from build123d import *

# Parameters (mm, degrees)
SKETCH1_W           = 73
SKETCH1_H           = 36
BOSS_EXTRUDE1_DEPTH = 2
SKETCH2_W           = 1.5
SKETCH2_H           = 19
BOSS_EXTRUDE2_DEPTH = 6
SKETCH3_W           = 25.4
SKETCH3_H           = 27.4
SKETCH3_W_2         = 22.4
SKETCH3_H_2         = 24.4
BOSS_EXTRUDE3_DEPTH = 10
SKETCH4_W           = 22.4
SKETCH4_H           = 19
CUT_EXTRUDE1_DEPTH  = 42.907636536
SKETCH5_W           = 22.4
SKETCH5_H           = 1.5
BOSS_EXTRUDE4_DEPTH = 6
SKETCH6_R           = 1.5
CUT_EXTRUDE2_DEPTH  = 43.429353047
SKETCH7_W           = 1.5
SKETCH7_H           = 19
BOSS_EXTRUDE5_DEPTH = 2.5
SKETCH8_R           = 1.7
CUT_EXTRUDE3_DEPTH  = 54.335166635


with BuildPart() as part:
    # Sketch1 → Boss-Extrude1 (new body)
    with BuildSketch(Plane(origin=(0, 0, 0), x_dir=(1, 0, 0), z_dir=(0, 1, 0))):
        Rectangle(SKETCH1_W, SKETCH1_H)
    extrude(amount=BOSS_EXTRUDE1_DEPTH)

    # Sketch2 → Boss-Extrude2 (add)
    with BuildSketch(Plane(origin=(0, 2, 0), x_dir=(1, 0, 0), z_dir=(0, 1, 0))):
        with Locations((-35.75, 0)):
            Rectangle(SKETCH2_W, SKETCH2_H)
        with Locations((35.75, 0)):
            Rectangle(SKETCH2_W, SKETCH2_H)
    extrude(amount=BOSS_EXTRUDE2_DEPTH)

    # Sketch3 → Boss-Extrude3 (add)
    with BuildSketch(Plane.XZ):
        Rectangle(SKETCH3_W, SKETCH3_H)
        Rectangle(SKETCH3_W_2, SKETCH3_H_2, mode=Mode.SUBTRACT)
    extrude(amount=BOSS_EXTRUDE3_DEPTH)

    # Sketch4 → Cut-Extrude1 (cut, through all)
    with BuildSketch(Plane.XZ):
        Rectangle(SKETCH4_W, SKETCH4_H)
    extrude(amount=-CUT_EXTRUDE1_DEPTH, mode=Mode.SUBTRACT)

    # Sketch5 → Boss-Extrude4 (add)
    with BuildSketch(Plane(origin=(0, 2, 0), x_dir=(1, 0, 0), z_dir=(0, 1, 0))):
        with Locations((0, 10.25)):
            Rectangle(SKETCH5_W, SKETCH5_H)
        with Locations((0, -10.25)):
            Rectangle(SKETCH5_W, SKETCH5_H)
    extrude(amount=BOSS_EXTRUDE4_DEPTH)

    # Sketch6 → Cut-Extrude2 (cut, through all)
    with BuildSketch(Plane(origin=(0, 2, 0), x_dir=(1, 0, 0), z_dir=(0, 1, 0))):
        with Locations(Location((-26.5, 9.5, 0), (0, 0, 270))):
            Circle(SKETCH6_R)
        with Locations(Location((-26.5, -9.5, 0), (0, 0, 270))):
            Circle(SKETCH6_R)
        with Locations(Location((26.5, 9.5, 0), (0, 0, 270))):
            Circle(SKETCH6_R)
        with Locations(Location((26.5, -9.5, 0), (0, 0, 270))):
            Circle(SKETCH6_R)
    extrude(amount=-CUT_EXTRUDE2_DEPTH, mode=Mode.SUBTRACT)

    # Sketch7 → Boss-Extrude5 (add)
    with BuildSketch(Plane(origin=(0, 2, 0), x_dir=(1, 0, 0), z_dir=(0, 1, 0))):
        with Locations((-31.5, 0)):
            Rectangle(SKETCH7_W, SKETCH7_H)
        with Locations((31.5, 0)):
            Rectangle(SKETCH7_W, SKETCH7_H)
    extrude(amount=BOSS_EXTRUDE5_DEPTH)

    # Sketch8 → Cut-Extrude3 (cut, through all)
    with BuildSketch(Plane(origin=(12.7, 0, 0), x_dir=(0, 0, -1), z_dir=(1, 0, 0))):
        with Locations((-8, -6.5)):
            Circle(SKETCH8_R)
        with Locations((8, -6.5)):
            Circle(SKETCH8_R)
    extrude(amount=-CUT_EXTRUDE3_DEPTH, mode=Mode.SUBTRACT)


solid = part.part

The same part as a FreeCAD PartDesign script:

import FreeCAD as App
import Part
import Sketcher
from FreeCAD import Vector
Q = App.Units.Quantity

doc = App.newDocument("Part")
params = doc.addObject("Spreadsheet::Sheet", "Params")
for row, (alias, value) in enumerate([
    ("sketch1_width", "73 mm"),
    ("sketch1_height", "36 mm"),
    ("pad1_length", "2 mm"),
    ("sketch2_height", "19 mm"),
    ("sketch2_width", "1.5 mm"),
    ("pad2_length", "6 mm"),
    ("sketch3_width", "25.4 mm"),
    ("sketch3_width2", "22.4 mm"),
    ("sketch3_height", "27.4 mm"),
    ("sketch3_height2", "24.4 mm"),
    ("pad3_length", "10 mm"),
    ("sketch4_height", "19 mm"),
    ("sketch4_width", "22.4 mm"),
    ("sketch5_width", "22.4 mm"),
    ("sketch5_height", "1.5 mm"),
    ("pad4_length", "6 mm"),
    ("sketch6_diameter", "3 mm"),
    ("sketch7_height", "19 mm"),
    ("sketch7_width", "1.5 mm"),
    ("pad5_length", "2.5 mm"),
    ("sketch8_diameter", "3.4 mm"),
], start=1):
    params.set(f"A{row}", alias)
    params.set(f"B{row}", "=" + value)
    params.setAlias(f"B{row}", alias)

body = doc.addObject("PartDesign::Body", "Body")

# Sketch on XZ plane
sketch1 = doc.addObject("Sketcher::SketchObject", "Sketch")
body.addObject(sketch1)
sketch1.AttachmentSupport = (doc.XZ_Plane, [""])
sketch1.MapMode = "FlatFace"
sketch1.addGeometry([
    Part.LineSegment(Vector(-36.5, -18, 0), Vector(-36.5, 18, 0)),
    Part.LineSegment(Vector(-36.5, 18, 0), Vector(36.5, 18, 0)),
    Part.LineSegment(Vector(36.5, 18, 0), Vector(36.5, -18, 0)),
    Part.LineSegment(Vector(36.5, -18, 0), Vector(-36.5, -18, 0)),
], False)
sketch1.addConstraint([
    Sketcher.Constraint("Coincident", 0, 2, 1, 1),
    Sketcher.Constraint("Coincident", 1, 2, 2, 1),
    Sketcher.Constraint("Coincident", 2, 2, 3, 1),
    Sketcher.Constraint("Coincident", 3, 2, 0, 1),
    Sketcher.Constraint("Vertical", 0),
    Sketcher.Constraint("Horizontal", 1),
    Sketcher.Constraint("Vertical", 2),
    Sketcher.Constraint("Horizontal", 3),
    Sketcher.Constraint("Symmetric", 0, 2, 2, 2, -1, 1),
    Sketcher.Constraint("DistanceX", 1, 1, 1, 2, Q("73 mm")),
    Sketcher.Constraint("DistanceY", 0, 1, 0, 2, Q("36 mm")),
])
sketch1.setExpression("Constraints[9]", "Params.sketch1_width")
sketch1.setExpression("Constraints[10]", "Params.sketch1_height")
pad1 = doc.addObject("PartDesign::Pad", "Pad")
body.addObject(pad1)
pad1.Profile = sketch1
pad1.setExpression("Length", "Params.pad1_length")
pad1.Reversed = True

# Sketch on XZ plane
sketch2 = doc.addObject("Sketcher::SketchObject", "Sketch001")
body.addObject(sketch2)
sketch2.AttachmentSupport = (doc.XZ_Plane, [""])
sketch2.MapMode = "FlatFace"
sketch2.AttachmentOffset = App.Placement(Vector(0, 0, -2), App.Rotation())
sketch2.addGeometry([
    Part.LineSegment(Vector(-36.5, -9.5, 0), Vector(-36.5, 9.5, 0)),  # 0
    Part.LineSegment(Vector(-36.5, 9.5, 0), Vector(-35, 9.5, 0)),  # 1
    Part.LineSegment(Vector(-35, 9.5, 0), Vector(-35, -9.5, 0)),  # 2
    Part.LineSegment(Vector(-35, -9.5, 0), Vector(-36.5, -9.5, 0)),  # 3
    Part.LineSegment(Vector(35, -9.5, 0), Vector(35, 9.5, 0)),  # 4
    Part.LineSegment(Vector(35, 9.5, 0), Vector(36.5, 9.5, 0)),  # 5
    Part.LineSegment(Vector(36.5, 9.5, 0), Vector(36.5, -9.5, 0)),  # 6
    Part.LineSegment(Vector(36.5, -9.5, 0), Vector(35, -9.5, 0)),  # 7
], False)
sketch2.addConstraint([
    Sketcher.Constraint("Coincident", 0, 2, 1, 1),
    Sketcher.Constraint("Coincident", 1, 2, 2, 1),
    Sketcher.Constraint("Coincident", 2, 2, 3, 1),
    Sketcher.Constraint("Coincident", 3, 2, 0, 1),
    Sketcher.Constraint("Coincident", 4, 2, 5, 1),
    Sketcher.Constraint("Coincident", 5, 2, 6, 1),
    Sketcher.Constraint("Coincident", 6, 2, 7, 1),
    Sketcher.Constraint("Coincident", 7, 2, 4, 1),
    Sketcher.Constraint("Vertical", 0),
    Sketcher.Constraint("Horizontal", 1),
    Sketcher.Constraint("Vertical", 2),
    Sketcher.Constraint("Horizontal", 3),
    Sketcher.Constraint("Vertical", 4),
    Sketcher.Constraint("Horizontal", 5),
    Sketcher.Constraint("Vertical", 6),
    Sketcher.Constraint("Horizontal", 7),
    Sketcher.Constraint("Symmetric", 2, 2, 4, 2, -1, 1),
    Sketcher.Constraint("Symmetric", 0, 2, 6, 2, -1, 1),
    Sketcher.Constraint("Horizontal", 1, 2, 4, 2),
    Sketcher.Constraint("DistanceY", 0, 1, 0, 2, Q("19 mm")),
    Sketcher.Constraint("DistanceX", 1, 1, 1, 2, Q("1.5 mm")),
    Sketcher.Constraint("DistanceX", 1, 2, -1, 1, Q("35 mm")),
])
sketch2.setExpression("Constraints[19]", "Params.sketch2_height")
sketch2.setExpression("Constraints[20]", "Params.sketch2_width")
pad2 = doc.addObject("PartDesign::Pad", "Pad001")
body.addObject(pad2)
pad2.Profile = sketch2
pad2.setExpression("Length", "Params.pad2_length")
pad2.Reversed = True

# Sketch on XZ plane
sketch3 = doc.addObject("Sketcher::SketchObject", "Sketch002")
body.addObject(sketch3)
sketch3.AttachmentSupport = (doc.XZ_Plane, [""])
sketch3.MapMode = "FlatFace"
sketch3.addGeometry([
    Part.LineSegment(Vector(-12.7, 13.7, 0), Vector(-12.7, -13.7, 0)),  # 0
    Part.LineSegment(Vector(-12.7, -13.7, 0), Vector(12.7, -13.7, 0)),  # 1
    Part.LineSegment(Vector(12.7, -13.7, 0), Vector(12.7, 13.7, 0)),  # 2
    Part.LineSegment(Vector(12.7, 13.7, 0), Vector(-12.7, 13.7, 0)),  # 3
    Part.LineSegment(Vector(11.2, -12.2, 0), Vector(-11.2, -12.2, 0)),  # 4
    Part.LineSegment(Vector(-11.2, -12.2, 0), Vector(-11.2, 12.2, 0)),  # 5
    Part.LineSegment(Vector(-11.2, 12.2, 0), Vector(11.2, 12.2, 0)),  # 6
    Part.LineSegment(Vector(11.2, 12.2, 0), Vector(11.2, -12.2, 0)),  # 7
], False)
sketch3.addConstraint([
    Sketcher.Constraint("Coincident", 0, 2, 1, 1),
    Sketcher.Constraint("Coincident", 1, 2, 2, 1),
    Sketcher.Constraint("Coincident", 2, 2, 3, 1),
    Sketcher.Constraint("Coincident", 3, 2, 0, 1),
    Sketcher.Constraint("Coincident", 4, 2, 5, 1),
    Sketcher.Constraint("Coincident", 5, 2, 6, 1),
    Sketcher.Constraint("Coincident", 6, 2, 7, 1),
    Sketcher.Constraint("Coincident", 7, 2, 4, 1),
    Sketcher.Constraint("Vertical", 0),
    Sketcher.Constraint("Horizontal", 1),
    Sketcher.Constraint("Vertical", 2),
    Sketcher.Constraint("Horizontal", 3),
    Sketcher.Constraint("Horizontal", 4),
    Sketcher.Constraint("Vertical", 5),
    Sketcher.Constraint("Horizontal", 6),
    Sketcher.Constraint("Vertical", 7),
    Sketcher.Constraint("Symmetric", 0, 2, 2, 2, -1, 1),
    Sketcher.Constraint("Symmetric", 4, 2, 6, 2, -1, 1),
    Sketcher.Constraint("DistanceX", 1, 1, 1, 2, Q("25.4 mm")),
    Sketcher.Constraint("DistanceX", 4, 2, 4, 1, Q("22.4 mm")),
    Sketcher.Constraint("DistanceY", 0, 2, 0, 1, Q("27.4 mm")),
    Sketcher.Constraint("DistanceY", 5, 1, 5, 2, Q("24.4 mm")),
])
sketch3.setExpression("Constraints[18]", "Params.sketch3_width")
sketch3.setExpression("Constraints[19]", "Params.sketch3_width2")
sketch3.setExpression("Constraints[20]", "Params.sketch3_height")
sketch3.setExpression("Constraints[21]", "Params.sketch3_height2")
pad3 = doc.addObject("PartDesign::Pad", "Pad002")
body.addObject(pad3)
pad3.Profile = sketch3
pad3.setExpression("Length", "Params.pad3_length")

# Sketch on XZ plane
sketch4 = doc.addObject("Sketcher::SketchObject", "Sketch003")
body.addObject(sketch4)
sketch4.AttachmentSupport = (doc.XZ_Plane, [""])
sketch4.MapMode = "FlatFace"
sketch4.addGeometry([
    Part.LineSegment(Vector(-11.2, 9.5, 0), Vector(-11.2, -9.5, 0)),
    Part.LineSegment(Vector(-11.2, -9.5, 0), Vector(11.2, -9.5, 0)),
    Part.LineSegment(Vector(11.2, -9.5, 0), Vector(11.2, 9.5, 0)),
    Part.LineSegment(Vector(11.2, 9.5, 0), Vector(-11.2, 9.5, 0)),
], False)
sketch4.addConstraint([
    Sketcher.Constraint("Coincident", 0, 2, 1, 1),
    Sketcher.Constraint("Coincident", 1, 2, 2, 1),
    Sketcher.Constraint("Coincident", 2, 2, 3, 1),
    Sketcher.Constraint("Coincident", 3, 2, 0, 1),
    Sketcher.Constraint("Vertical", 0),
    Sketcher.Constraint("Horizontal", 1),
    Sketcher.Constraint("Vertical", 2),
    Sketcher.Constraint("Horizontal", 3),
    Sketcher.Constraint("Symmetric", 0, 2, 2, 2, -1, 1),
    Sketcher.Constraint("DistanceY", 0, 2, 0, 1, Q("19 mm")),
    Sketcher.Constraint("DistanceX", 1, 1, 1, 2, Q("22.4 mm")),
])
sketch4.setExpression("Constraints[9]", "Params.sketch4_height")
sketch4.setExpression("Constraints[10]", "Params.sketch4_width")
pocket1 = doc.addObject("PartDesign::Pocket", "Pocket")
body.addObject(pocket1)
pocket1.Profile = sketch4
pocket1.Type = "ThroughAll"

# Sketch on XZ plane
sketch5 = doc.addObject("Sketcher::SketchObject", "Sketch004")
body.addObject(sketch5)
sketch5.AttachmentSupport = (doc.XZ_Plane, [""])
sketch5.MapMode = "FlatFace"
sketch5.AttachmentOffset = App.Placement(Vector(0, 0, -2), App.Rotation())
sketch5.addGeometry([
    Part.LineSegment(Vector(-11.2, -11, 0), Vector(-11.2, -9.5, 0)),  # 0
    Part.LineSegment(Vector(-11.2, -9.5, 0), Vector(11.2, -9.5, 0)),  # 1
    Part.LineSegment(Vector(11.2, -9.5, 0), Vector(11.2, -11, 0)),  # 2
    Part.LineSegment(Vector(11.2, -11, 0), Vector(-11.2, -11, 0)),  # 3
    Part.LineSegment(Vector(-11.2, 9.5, 0), Vector(-11.2, 11, 0)),  # 4
    Part.LineSegment(Vector(-11.2, 11, 0), Vector(11.2, 11, 0)),  # 5
    Part.LineSegment(Vector(11.2, 11, 0), Vector(11.2, 9.5, 0)),  # 6
    Part.LineSegment(Vector(11.2, 9.5, 0), Vector(-11.2, 9.5, 0)),  # 7
], False)
sketch5.addConstraint([
    Sketcher.Constraint("Coincident", 0, 2, 1, 1),
    Sketcher.Constraint("Coincident", 1, 2, 2, 1),
    Sketcher.Constraint("Coincident", 2, 2, 3, 1),
    Sketcher.Constraint("Coincident", 3, 2, 0, 1),
    Sketcher.Constraint("Coincident", 4, 2, 5, 1),
    Sketcher.Constraint("Coincident", 5, 2, 6, 1),
    Sketcher.Constraint("Coincident", 6, 2, 7, 1),
    Sketcher.Constraint("Coincident", 7, 2, 4, 1),
    Sketcher.Constraint("Vertical", 0),
    Sketcher.Constraint("Horizontal", 1),
    Sketcher.Constraint("Vertical", 2),
    Sketcher.Constraint("Horizontal", 3),
    Sketcher.Constraint("Vertical", 4),
    Sketcher.Constraint("Horizontal", 5),
    Sketcher.Constraint("Vertical", 6),
    Sketcher.Constraint("Horizontal", 7),
    Sketcher.Constraint("Symmetric", 2, 2, 4, 2, -1, 1),
    Sketcher.Constraint("Symmetric", 0, 2, 6, 2, -1, 1),
    Sketcher.Constraint("Vertical", 3, 2, 4, 2),
    Sketcher.Constraint("DistanceX", 1, 1, 1, 2, Q("22.4 mm")),
    Sketcher.Constraint("DistanceY", 0, 1, 0, 2, Q("1.5 mm")),
    Sketcher.Constraint("DistanceY", 2, 2, -1, 1, Q("11 mm")),
])
sketch5.setExpression("Constraints[19]", "Params.sketch5_width")
sketch5.setExpression("Constraints[20]", "Params.sketch5_height")
pad4 = doc.addObject("PartDesign::Pad", "Pad003")
body.addObject(pad4)
pad4.Profile = sketch5
pad4.setExpression("Length", "Params.pad4_length")
pad4.Reversed = True

# Sketch on XZ plane
sketch6 = doc.addObject("Sketcher::SketchObject", "Sketch005")
body.addObject(sketch6)
sketch6.AttachmentSupport = (doc.XZ_Plane, [""])
sketch6.MapMode = "FlatFace"
sketch6.AttachmentOffset = App.Placement(Vector(0, 0, -2), App.Rotation())
sketch6.addGeometry([
    Part.Circle(Vector(-26.5, -9.5, 0), Vector(0, 0, 1), 1.5),
    Part.Circle(Vector(-26.5, 9.5, 0), Vector(0, 0, 1), 1.5),
    Part.Circle(Vector(26.5, -9.5, 0), Vector(0, 0, 1), 1.5),
    Part.Circle(Vector(26.5, 9.5, 0), Vector(0, 0, 1), 1.5),
], False)
sketch6.addConstraint([
    Sketcher.Constraint("Equal", 0, 1),
    Sketcher.Constraint("Equal", 1, 2),
    Sketcher.Constraint("Equal", 2, 3),
    Sketcher.Constraint("Symmetric", 1, 3, 2, 3, -1, 1),
    Sketcher.Constraint("Symmetric", 0, 3, 3, 3, -1, 1),
    Sketcher.Constraint("Symmetric", 0, 3, 2, 3, -2),
    Sketcher.Constraint("Diameter", 0, Q("3 mm")),
    Sketcher.Constraint("DistanceY", 0, 3, 1, 3, Q("19 mm")),
    Sketcher.Constraint("DistanceX", 0, 3, 2, 3, Q("53 mm")),
])
sketch6.setExpression("Constraints[6]", "Params.sketch6_diameter")
pocket2 = doc.addObject("PartDesign::Pocket", "Pocket001")
body.addObject(pocket2)
pocket2.Profile = sketch6
pocket2.Type = "ThroughAll"
pocket2.Reversed = True

# Sketch on XZ plane
sketch7 = doc.addObject("Sketcher::SketchObject", "Sketch006")
body.addObject(sketch7)
sketch7.AttachmentSupport = (doc.XZ_Plane, [""])
sketch7.MapMode = "FlatFace"
sketch7.AttachmentOffset = App.Placement(Vector(0, 0, -2), App.Rotation())
sketch7.addGeometry([
    Part.LineSegment(Vector(-32.25, -9.5, 0), Vector(-32.25, 9.5, 0)),  # 0
    Part.LineSegment(Vector(-32.25, 9.5, 0), Vector(-30.75, 9.5, 0)),  # 1
    Part.LineSegment(Vector(-30.75, 9.5, 0), Vector(-30.75, -9.5, 0)),  # 2
    Part.LineSegment(Vector(-30.75, -9.5, 0), Vector(-32.25, -9.5, 0)),  # 3
    Part.LineSegment(Vector(30.75, -9.5, 0), Vector(30.75, 9.5, 0)),  # 4
    Part.LineSegment(Vector(30.75, 9.5, 0), Vector(32.25, 9.5, 0)),  # 5
    Part.LineSegment(Vector(32.25, 9.5, 0), Vector(32.25, -9.5, 0)),  # 6
    Part.LineSegment(Vector(32.25, -9.5, 0), Vector(30.75, -9.5, 0)),  # 7
], False)
sketch7.addConstraint([
    Sketcher.Constraint("Coincident", 0, 2, 1, 1),
    Sketcher.Constraint("Coincident", 1, 2, 2, 1),
    Sketcher.Constraint("Coincident", 2, 2, 3, 1),
    Sketcher.Constraint("Coincident", 3, 2, 0, 1),
    Sketcher.Constraint("Coincident", 4, 2, 5, 1),
    Sketcher.Constraint("Coincident", 5, 2, 6, 1),
    Sketcher.Constraint("Coincident", 6, 2, 7, 1),
    Sketcher.Constraint("Coincident", 7, 2, 4, 1),
    Sketcher.Constraint("Vertical", 0),
    Sketcher.Constraint("Horizontal", 1),
    Sketcher.Constraint("Vertical", 2),
    Sketcher.Constraint("Horizontal", 3),
    Sketcher.Constraint("Vertical", 4),
    Sketcher.Constraint("Horizontal", 5),
    Sketcher.Constraint("Vertical", 6),
    Sketcher.Constraint("Horizontal", 7),
    Sketcher.Constraint("Symmetric", 2, 2, 4, 2, -1, 1),
    Sketcher.Constraint("Symmetric", 0, 2, 6, 2, -1, 1),
    Sketcher.Constraint("Horizontal", 1, 2, 4, 2),
    Sketcher.Constraint("DistanceY", 0, 1, 0, 2, Q("19 mm")),
    Sketcher.Constraint("DistanceX", 1, 1, 1, 2, Q("1.5 mm")),
    Sketcher.Constraint("DistanceX", 0, 2, 4, 2, Q("63 mm")),
])
sketch7.setExpression("Constraints[19]", "Params.sketch7_height")
sketch7.setExpression("Constraints[20]", "Params.sketch7_width")
pad5 = doc.addObject("PartDesign::Pad", "Pad004")
body.addObject(pad5)
pad5.Profile = sketch7
pad5.setExpression("Length", "Params.pad5_length")
pad5.Reversed = True

# Sketch on YZ plane
sketch8 = doc.addObject("Sketcher::SketchObject", "Sketch007")
body.addObject(sketch8)
sketch8.AttachmentSupport = (doc.YZ_Plane, [""])
sketch8.MapMode = "FlatFace"
sketch8.AttachmentOffset = App.Placement(Vector(0, 0, 12.7), App.Rotation())
sketch8.addGeometry([
    Part.Circle(Vector(-6.5, 8, 0), Vector(0, 0, 1), 1.7),
    Part.Circle(Vector(-6.5, -8, 0), Vector(0, 0, 1), 1.7),
], False)
sketch8.addConstraint([
    Sketcher.Constraint("Equal", 0, 1),
    Sketcher.Constraint("Symmetric", 0, 3, 1, 3, -1),
    Sketcher.Constraint("Diameter", 0, Q("3.4 mm")),
    Sketcher.Constraint("DistanceY", -1, 1, 0, 3, Q("8 mm")),
    Sketcher.Constraint("DistanceX", 0, 3, -1, 1, Q("6.5 mm")),
])
sketch8.setExpression("Constraints[2]", "Params.sketch8_diameter")
pocket3 = doc.addObject("PartDesign::Pocket", "Pocket002")
body.addObject(pocket3)
pocket3.Profile = sketch8
pocket3.Type = "ThroughAll"

doc.recompute()
